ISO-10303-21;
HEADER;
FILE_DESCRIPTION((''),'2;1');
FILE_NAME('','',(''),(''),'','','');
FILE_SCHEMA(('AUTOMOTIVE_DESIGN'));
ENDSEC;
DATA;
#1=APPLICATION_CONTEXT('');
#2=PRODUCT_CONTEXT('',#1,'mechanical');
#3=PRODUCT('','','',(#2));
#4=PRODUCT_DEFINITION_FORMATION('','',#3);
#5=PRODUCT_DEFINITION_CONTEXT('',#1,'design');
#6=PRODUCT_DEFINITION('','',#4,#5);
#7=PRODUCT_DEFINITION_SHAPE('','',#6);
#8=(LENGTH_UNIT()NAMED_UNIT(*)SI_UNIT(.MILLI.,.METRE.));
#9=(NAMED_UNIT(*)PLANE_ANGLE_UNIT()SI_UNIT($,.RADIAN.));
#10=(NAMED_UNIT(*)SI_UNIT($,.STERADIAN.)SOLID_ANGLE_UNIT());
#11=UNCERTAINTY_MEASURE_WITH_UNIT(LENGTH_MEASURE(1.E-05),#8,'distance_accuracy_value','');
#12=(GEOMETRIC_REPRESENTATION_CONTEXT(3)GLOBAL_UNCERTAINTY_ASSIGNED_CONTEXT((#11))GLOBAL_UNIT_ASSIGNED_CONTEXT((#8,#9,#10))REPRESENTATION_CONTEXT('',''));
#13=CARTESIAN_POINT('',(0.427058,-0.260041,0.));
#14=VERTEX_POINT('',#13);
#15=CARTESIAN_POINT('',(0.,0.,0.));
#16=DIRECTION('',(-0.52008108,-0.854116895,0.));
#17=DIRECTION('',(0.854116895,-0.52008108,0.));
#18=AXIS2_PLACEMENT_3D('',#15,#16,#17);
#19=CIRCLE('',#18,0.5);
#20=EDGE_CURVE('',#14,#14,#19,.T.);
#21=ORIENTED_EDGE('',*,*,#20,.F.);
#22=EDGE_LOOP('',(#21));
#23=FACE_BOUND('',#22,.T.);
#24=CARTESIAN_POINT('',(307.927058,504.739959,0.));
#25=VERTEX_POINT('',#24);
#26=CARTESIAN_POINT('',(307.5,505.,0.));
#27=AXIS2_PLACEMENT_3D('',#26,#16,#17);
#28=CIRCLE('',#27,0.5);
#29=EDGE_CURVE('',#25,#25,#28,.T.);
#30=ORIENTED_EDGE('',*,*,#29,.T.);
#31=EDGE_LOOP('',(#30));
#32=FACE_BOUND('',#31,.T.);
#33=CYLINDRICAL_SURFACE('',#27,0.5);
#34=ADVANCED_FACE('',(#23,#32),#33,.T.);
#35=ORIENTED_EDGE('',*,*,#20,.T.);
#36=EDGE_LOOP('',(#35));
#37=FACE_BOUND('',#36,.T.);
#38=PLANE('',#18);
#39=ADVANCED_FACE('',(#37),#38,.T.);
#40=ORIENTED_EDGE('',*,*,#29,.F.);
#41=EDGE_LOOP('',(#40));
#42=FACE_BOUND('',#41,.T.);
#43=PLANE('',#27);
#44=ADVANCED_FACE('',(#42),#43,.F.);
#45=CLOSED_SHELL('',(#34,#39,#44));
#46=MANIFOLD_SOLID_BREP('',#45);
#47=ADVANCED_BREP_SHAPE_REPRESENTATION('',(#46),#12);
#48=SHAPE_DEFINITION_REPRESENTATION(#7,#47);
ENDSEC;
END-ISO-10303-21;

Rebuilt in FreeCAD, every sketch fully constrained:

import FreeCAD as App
import Part
import Sketcher

V = App.Vector

doc = App.newDocument("Part")
body = doc.addObject("PartDesign::Body", "Body")

sketch1 = body.newObject("Sketcher::SketchObject", "Sketch")
sketch1.Placement = App.Placement(V(307.5, 505, 0), App.Rotation(V(-0.854116895, 0.52008108, 0), V(0, 0, -1), V(-0.52008108, -0.854116895, 0), "ZXY"))
sketch1.addGeometry(Part.Circle(V(0, 0, 0), V(0, 0, 1), 0.5), False)
sketch1.addConstraint([
    Sketcher.Constraint("Coincident", 0, 3, -1, 1),
    Sketcher.Constraint("Diameter", 0, 1.0),
])

sketch2 = body.newObject("Sketcher::SketchObject", "Sketch001")
sketch2.Placement = App.Placement(V(0, 0, 0), App.Rotation(V(-0.52008108, -0.854116895, 0), V(0, 0, 1), V(-0.854116895, 0.52008108, 0), "ZXY"))
sketch2.addGeometry(Part.LineSegment(V(-591, 0, 0), V(0, 0, 0)), False)
sketch2.addConstraint([
    Sketcher.Constraint("Horizontal", 0),
    Sketcher.Constraint("Coincident", 0, 2, -1, 1),
    Sketcher.Constraint("DistanceX", 0, 1, 0, 2, 591.253964),
])
doc.recompute()

additivepipe = body.newObject("PartDesign::AdditivePipe", "AdditivePipe")
additivepipe.Profile = sketch1
additivepipe.Spine = (sketch2, ["Edge1"])

doc.recompute()
